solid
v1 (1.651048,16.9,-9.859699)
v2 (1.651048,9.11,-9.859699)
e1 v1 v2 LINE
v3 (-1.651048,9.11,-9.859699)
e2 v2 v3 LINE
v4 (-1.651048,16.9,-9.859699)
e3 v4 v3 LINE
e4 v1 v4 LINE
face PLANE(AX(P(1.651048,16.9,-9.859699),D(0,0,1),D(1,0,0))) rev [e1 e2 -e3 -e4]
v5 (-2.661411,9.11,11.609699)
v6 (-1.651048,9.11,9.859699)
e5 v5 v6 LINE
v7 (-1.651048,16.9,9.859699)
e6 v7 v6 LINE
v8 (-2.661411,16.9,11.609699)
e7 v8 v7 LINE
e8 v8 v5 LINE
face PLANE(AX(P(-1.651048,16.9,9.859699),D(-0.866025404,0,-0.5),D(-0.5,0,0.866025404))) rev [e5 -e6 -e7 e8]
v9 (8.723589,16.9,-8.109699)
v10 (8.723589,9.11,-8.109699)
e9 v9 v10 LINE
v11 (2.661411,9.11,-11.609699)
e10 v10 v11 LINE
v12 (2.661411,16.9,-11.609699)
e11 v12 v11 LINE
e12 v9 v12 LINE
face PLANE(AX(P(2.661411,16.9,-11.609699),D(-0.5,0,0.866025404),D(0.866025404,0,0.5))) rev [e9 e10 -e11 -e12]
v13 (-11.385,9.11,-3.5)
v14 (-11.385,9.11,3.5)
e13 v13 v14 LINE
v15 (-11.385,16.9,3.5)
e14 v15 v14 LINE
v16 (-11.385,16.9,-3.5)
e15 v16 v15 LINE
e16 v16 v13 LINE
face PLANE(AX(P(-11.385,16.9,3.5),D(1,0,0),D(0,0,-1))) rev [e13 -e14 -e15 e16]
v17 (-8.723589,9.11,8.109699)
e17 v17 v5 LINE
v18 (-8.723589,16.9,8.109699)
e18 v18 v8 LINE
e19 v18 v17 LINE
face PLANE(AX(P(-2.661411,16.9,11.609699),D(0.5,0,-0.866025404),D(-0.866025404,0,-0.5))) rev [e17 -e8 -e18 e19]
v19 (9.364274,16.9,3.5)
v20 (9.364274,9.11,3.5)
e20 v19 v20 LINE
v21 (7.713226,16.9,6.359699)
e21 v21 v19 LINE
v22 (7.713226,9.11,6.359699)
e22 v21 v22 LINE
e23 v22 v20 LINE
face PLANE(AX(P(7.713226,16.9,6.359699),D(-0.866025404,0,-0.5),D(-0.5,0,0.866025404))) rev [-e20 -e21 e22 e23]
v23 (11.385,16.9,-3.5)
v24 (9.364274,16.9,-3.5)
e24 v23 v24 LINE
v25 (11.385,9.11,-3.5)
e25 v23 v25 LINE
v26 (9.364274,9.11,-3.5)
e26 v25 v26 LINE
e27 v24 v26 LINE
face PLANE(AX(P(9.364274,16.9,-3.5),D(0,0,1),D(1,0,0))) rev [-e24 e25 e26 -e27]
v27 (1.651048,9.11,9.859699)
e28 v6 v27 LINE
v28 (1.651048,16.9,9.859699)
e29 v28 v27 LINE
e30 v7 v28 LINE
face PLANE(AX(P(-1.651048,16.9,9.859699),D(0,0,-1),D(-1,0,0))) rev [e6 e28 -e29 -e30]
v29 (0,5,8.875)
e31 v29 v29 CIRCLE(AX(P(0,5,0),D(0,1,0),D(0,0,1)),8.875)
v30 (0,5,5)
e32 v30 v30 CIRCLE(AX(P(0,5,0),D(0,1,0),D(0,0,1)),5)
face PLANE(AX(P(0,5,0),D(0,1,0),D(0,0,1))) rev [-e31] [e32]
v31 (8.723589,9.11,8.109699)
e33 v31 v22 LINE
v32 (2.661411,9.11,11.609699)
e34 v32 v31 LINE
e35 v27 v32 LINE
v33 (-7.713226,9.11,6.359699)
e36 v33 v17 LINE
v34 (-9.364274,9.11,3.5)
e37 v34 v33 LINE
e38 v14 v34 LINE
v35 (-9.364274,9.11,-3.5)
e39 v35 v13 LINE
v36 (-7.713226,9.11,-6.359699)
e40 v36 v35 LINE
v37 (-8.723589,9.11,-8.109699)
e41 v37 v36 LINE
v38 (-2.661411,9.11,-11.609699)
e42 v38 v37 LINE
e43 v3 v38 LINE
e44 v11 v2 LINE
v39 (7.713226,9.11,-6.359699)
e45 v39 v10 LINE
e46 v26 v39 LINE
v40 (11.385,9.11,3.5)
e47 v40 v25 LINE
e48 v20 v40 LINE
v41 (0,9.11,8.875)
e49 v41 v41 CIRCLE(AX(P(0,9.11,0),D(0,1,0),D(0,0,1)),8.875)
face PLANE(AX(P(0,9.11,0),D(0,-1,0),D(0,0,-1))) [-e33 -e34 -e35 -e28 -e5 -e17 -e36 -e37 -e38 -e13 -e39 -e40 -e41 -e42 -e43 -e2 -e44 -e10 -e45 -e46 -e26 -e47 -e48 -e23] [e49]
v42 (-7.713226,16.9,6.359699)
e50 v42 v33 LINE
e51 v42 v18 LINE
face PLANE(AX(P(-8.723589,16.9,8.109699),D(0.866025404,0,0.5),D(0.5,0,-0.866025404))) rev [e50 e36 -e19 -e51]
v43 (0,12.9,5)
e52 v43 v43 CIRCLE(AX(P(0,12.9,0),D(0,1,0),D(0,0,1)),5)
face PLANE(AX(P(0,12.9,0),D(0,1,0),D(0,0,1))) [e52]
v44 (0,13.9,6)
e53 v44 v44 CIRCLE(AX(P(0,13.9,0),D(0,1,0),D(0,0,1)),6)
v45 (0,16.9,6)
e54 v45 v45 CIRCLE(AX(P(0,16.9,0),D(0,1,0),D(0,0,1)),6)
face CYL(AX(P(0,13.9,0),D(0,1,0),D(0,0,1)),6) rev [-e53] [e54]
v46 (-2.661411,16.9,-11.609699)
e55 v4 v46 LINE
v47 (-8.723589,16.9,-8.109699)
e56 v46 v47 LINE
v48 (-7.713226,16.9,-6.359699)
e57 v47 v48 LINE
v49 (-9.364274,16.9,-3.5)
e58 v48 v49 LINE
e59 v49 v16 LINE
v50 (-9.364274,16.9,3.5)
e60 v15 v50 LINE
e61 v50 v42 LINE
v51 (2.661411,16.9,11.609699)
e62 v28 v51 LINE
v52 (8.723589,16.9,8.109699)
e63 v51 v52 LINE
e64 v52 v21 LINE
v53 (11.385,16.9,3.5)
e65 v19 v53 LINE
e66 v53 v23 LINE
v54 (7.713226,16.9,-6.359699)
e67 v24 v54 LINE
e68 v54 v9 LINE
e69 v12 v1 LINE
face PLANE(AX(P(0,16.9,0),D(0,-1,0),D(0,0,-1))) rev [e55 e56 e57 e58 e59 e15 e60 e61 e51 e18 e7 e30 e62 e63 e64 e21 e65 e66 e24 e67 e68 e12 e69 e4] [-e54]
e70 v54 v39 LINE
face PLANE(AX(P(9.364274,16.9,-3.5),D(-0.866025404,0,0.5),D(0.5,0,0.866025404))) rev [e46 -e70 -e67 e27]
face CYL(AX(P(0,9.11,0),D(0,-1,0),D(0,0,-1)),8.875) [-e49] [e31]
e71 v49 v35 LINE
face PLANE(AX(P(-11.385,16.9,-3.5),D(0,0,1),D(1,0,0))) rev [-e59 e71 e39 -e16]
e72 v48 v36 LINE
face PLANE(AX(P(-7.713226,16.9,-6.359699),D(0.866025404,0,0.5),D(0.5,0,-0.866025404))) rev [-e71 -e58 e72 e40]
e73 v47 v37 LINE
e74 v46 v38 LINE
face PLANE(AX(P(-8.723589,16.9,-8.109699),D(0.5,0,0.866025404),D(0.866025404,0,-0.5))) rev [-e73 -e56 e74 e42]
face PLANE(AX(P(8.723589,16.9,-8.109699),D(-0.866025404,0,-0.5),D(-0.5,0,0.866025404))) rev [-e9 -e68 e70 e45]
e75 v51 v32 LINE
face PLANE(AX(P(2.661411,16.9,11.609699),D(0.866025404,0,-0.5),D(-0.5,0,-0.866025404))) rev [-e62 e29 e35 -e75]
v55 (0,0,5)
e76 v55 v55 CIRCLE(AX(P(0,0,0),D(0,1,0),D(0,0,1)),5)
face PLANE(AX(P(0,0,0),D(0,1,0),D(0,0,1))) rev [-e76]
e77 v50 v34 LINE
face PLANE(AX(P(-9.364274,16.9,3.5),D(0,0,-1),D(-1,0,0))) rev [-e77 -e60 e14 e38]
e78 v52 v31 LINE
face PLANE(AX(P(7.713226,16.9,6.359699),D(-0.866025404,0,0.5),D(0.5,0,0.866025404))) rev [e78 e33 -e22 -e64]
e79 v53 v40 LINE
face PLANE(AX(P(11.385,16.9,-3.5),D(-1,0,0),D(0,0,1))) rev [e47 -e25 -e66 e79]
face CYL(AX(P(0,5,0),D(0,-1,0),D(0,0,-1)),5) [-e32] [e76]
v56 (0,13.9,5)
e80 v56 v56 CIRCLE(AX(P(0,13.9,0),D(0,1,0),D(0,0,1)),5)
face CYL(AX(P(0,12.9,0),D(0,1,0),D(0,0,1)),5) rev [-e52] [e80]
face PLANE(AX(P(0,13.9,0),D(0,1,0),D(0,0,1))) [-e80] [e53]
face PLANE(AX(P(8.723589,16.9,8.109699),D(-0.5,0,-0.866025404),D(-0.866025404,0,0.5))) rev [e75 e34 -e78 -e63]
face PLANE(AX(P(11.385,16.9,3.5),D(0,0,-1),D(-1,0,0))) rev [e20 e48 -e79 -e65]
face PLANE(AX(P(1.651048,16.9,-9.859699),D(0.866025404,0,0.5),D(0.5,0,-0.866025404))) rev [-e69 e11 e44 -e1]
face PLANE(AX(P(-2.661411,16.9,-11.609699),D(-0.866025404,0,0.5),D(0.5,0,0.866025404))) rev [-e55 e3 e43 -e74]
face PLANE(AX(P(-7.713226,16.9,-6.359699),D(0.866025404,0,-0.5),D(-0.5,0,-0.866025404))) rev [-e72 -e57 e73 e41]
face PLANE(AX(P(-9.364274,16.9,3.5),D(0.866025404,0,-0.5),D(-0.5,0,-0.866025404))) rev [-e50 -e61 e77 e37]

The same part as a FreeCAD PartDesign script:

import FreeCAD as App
import Part
import Sketcher
Q = App.Units.Quantity


def add_polygon(sketch, points):
    """Adds a closed chain of lines whose ends are joined by coincident constraints."""
    first, n = sketch.GeometryCount, len(points)
    for a, b in zip(points, points[1:] + points[:1]):
        sketch.addGeometry(Part.LineSegment(App.Vector(*a, 0), App.Vector(*b, 0)), False)
    for i in range(n):
        sketch.addConstraint(Sketcher.Constraint("Coincident", first + i, 2, first + (i + 1) % n, 1))

doc = App.newDocument("Part")
body = doc.addObject("PartDesign::Body", "Body")

# Sketch on XZ plane
sketch1 = body.newObject("Sketcher::SketchObject", "Sketch")
sketch1.AttachmentSupport = (doc.getObject("XZ_Plane"), [""])
sketch1.MapMode = "FlatFace"
sketch1.addGeometry(Part.Circle(App.Vector(0, 0, 0), App.Vector(0, 0, 1), 5), False)
sketch1.addConstraint([
    Sketcher.Constraint("Coincident", 0, 3, -1, 1),
    Sketcher.Constraint("Diameter", 0, 10.0),
])
pad1 = body.newObject("PartDesign::Pad", "Pad")
pad1.Profile = sketch1
pad1.Length = 5
pad1.Reversed = True

# Sketch on XZ plane
sketch2 = body.newObject("Sketcher::SketchObject", "Sketch001")
sketch2.AttachmentSupport = (doc.getObject("XZ_Plane"), [""])
sketch2.MapMode = "FlatFace"
sketch2.AttachmentOffset = App.Placement(App.Vector(0, 0, -5), App.Rotation())
sketch2.addGeometry(Part.Circle(App.Vector(0, 0, 0), App.Vector(0, 0, 1), 9), False)
sketch2.addConstraint([
    Sketcher.Constraint("Coincident", 0, 3, -1, 1),
    Sketcher.Constraint("Diameter", 0, 17.75),
])
pad2 = body.newObject("PartDesign::Pad", "Pad001")
pad2.Profile = sketch2
pad2.Length = 4.11
pad2.Reversed = True

# Sketch on XZ plane
sketch3 = body.newObject("Sketcher::SketchObject", "Sketch002")
sketch3.AttachmentSupport = (doc.getObject("XZ_Plane"), [""])
sketch3.MapMode = "FlatFace"
sketch3.AttachmentOffset = App.Placement(App.Vector(0, 0, -9.11), App.Rotation())
add_polygon(sketch3, [(11.4, -3.5), (9.4, -3.5), (7.7, -6.4), (8.7, -8.1), (2.7, -11.6), (1.7, -9.9), (-1.7, -9.9), (-2.7, -11.6), (-8.7, -8.1), (-7.7, -6.4), (-9.4, -3.5), (-11.4, -3.5), (-11.4, 3.5), (-9.4, 3.5), (-7.7, 6.4), (-8.7, 8.1), (-2.7, 11.6), (-1.7, 9.9), (1.7, 9.9), (2.7, 11.6), (8.7, 8.1), (7.7, 6.4), (9.4, 3.5), (11.4, 3.5)])  # lines 0-23
sketch3.addConstraint([
    Sketcher.Constraint("Horizontal", 0),
    Sketcher.Constraint("Horizontal", 5),
    Sketcher.Constraint("Horizontal", 10),
    Sketcher.Constraint("Vertical", 11),
    Sketcher.Constraint("Horizontal", 12),
    Sketcher.Constraint("Horizontal", 17),
    Sketcher.Constraint("Horizontal", 22),
    Sketcher.Constraint("Vertical", 23),
    Sketcher.Constraint("Symmetric", 0, 2, 12, 2, -1, 1),
    Sketcher.Constraint("Symmetric", 1, 2, 13, 2, -1, 1),
    Sketcher.Constraint("Symmetric", 2, 2, 14, 2, -1, 1),
    Sketcher.Constraint("Symmetric", 3, 2, 15, 2, -1, 1),
    Sketcher.Constraint("Symmetric", 4, 2, 16, 2, -1, 1),
    Sketcher.Constraint("Symmetric", 6, 2, 18, 2, -1, 1),
    Sketcher.Constraint("Symmetric", 7, 2, 19, 2, -1, 1),
    Sketcher.Constraint("Symmetric", 8, 2, 20, 2, -1, 1),
    Sketcher.Constraint("Symmetric", 9, 2, 21, 2, -1, 1),
    Sketcher.Constraint("Symmetric", 3, 2, 6, 2, -2),
    Sketcher.Constraint("Symmetric", 2, 2, 7, 2, -2),
    Sketcher.Constraint("Symmetric", 1, 2, 8, 2, -2),
    Sketcher.Constraint("Symmetric", 0, 2, 9, 2, -2),
    Sketcher.Constraint("Perpendicular", 2, 3),
    Sketcher.Constraint("Perpendicular", 3, 4),
    Sketcher.Constraint("Parallel", 1, 6),
    Sketcher.Constraint("Perpendicular", 6, 7),
    Sketcher.Constraint("Parallel", 13, 18),
    Sketcher.Constraint("Equal", 0, 10),
    Sketcher.Constraint("Equal", 2, 4),
    Sketcher.Constraint("DistanceY", 11, 1, 11, 2, 7.0),
    Sketcher.Constraint("Angle", 1, Q("-120 deg")),
    Sketcher.Constraint("Distance", 3, 7.0),
    Sketcher.Constraint("DistanceY", 2, 2, 1, 2, 1.75),
    Sketcher.Constraint("DistanceX", 10, 2, -1, 1, 11.385),
    Sketcher.Constraint("DistanceX", 6, 2, 2, 2, 11.385),
    Sketcher.Constraint("DistanceY", 1, 2, -1, 1, 6.359699),
])
pad3 = body.newObject("PartDesign::Pad", "Pad002")
pad3.Profile = sketch3
pad3.Length = 7.79
pad3.Reversed = True

# Sketch on XZ plane
sketch4 = body.newObject("Sketcher::SketchObject", "Sketch003")
sketch4.AttachmentSupport = (doc.getObject("XZ_Plane"), [""])
sketch4.MapMode = "FlatFace"
sketch4.AttachmentOffset = App.Placement(App.Vector(0, 0, -16.9), App.Rotation())
sketch4.addGeometry(Part.Circle(App.Vector(0, 0, 0), App.Vector(0, 0, 1), 6), False)
sketch4.addConstraint([
    Sketcher.Constraint("Coincident", 0, 3, -1, 1),
    Sketcher.Constraint("Diameter", 0, 12.0),
])
pocket1 = body.newObject("PartDesign::Pocket", "Pocket")
pocket1.Profile = sketch4
pocket1.Length = 3
pocket1.Reversed = True

# Sketch on XZ plane
sketch5 = body.newObject("Sketcher::SketchObject", "Sketch004")
sketch5.AttachmentSupport = (doc.getObject("XZ_Plane"), [""])
sketch5.MapMode = "FlatFace"
sketch5.AttachmentOffset = App.Placement(App.Vector(0, 0, -12.9), App.Rotation())
sketch5.addGeometry(Part.Circle(App.Vector(0, 0, 0), App.Vector(0, 0, 1), 5), False)
sketch5.addConstraint([
    Sketcher.Constraint("Coincident", 0, 3, -1, 1),
    Sketcher.Constraint("Diameter", 0, 10.0),
])
pocket2 = body.newObject("PartDesign::Pocket", "Pocket001")
pocket2.Profile = sketch5
pocket2.Length = 1

doc.recompute()
